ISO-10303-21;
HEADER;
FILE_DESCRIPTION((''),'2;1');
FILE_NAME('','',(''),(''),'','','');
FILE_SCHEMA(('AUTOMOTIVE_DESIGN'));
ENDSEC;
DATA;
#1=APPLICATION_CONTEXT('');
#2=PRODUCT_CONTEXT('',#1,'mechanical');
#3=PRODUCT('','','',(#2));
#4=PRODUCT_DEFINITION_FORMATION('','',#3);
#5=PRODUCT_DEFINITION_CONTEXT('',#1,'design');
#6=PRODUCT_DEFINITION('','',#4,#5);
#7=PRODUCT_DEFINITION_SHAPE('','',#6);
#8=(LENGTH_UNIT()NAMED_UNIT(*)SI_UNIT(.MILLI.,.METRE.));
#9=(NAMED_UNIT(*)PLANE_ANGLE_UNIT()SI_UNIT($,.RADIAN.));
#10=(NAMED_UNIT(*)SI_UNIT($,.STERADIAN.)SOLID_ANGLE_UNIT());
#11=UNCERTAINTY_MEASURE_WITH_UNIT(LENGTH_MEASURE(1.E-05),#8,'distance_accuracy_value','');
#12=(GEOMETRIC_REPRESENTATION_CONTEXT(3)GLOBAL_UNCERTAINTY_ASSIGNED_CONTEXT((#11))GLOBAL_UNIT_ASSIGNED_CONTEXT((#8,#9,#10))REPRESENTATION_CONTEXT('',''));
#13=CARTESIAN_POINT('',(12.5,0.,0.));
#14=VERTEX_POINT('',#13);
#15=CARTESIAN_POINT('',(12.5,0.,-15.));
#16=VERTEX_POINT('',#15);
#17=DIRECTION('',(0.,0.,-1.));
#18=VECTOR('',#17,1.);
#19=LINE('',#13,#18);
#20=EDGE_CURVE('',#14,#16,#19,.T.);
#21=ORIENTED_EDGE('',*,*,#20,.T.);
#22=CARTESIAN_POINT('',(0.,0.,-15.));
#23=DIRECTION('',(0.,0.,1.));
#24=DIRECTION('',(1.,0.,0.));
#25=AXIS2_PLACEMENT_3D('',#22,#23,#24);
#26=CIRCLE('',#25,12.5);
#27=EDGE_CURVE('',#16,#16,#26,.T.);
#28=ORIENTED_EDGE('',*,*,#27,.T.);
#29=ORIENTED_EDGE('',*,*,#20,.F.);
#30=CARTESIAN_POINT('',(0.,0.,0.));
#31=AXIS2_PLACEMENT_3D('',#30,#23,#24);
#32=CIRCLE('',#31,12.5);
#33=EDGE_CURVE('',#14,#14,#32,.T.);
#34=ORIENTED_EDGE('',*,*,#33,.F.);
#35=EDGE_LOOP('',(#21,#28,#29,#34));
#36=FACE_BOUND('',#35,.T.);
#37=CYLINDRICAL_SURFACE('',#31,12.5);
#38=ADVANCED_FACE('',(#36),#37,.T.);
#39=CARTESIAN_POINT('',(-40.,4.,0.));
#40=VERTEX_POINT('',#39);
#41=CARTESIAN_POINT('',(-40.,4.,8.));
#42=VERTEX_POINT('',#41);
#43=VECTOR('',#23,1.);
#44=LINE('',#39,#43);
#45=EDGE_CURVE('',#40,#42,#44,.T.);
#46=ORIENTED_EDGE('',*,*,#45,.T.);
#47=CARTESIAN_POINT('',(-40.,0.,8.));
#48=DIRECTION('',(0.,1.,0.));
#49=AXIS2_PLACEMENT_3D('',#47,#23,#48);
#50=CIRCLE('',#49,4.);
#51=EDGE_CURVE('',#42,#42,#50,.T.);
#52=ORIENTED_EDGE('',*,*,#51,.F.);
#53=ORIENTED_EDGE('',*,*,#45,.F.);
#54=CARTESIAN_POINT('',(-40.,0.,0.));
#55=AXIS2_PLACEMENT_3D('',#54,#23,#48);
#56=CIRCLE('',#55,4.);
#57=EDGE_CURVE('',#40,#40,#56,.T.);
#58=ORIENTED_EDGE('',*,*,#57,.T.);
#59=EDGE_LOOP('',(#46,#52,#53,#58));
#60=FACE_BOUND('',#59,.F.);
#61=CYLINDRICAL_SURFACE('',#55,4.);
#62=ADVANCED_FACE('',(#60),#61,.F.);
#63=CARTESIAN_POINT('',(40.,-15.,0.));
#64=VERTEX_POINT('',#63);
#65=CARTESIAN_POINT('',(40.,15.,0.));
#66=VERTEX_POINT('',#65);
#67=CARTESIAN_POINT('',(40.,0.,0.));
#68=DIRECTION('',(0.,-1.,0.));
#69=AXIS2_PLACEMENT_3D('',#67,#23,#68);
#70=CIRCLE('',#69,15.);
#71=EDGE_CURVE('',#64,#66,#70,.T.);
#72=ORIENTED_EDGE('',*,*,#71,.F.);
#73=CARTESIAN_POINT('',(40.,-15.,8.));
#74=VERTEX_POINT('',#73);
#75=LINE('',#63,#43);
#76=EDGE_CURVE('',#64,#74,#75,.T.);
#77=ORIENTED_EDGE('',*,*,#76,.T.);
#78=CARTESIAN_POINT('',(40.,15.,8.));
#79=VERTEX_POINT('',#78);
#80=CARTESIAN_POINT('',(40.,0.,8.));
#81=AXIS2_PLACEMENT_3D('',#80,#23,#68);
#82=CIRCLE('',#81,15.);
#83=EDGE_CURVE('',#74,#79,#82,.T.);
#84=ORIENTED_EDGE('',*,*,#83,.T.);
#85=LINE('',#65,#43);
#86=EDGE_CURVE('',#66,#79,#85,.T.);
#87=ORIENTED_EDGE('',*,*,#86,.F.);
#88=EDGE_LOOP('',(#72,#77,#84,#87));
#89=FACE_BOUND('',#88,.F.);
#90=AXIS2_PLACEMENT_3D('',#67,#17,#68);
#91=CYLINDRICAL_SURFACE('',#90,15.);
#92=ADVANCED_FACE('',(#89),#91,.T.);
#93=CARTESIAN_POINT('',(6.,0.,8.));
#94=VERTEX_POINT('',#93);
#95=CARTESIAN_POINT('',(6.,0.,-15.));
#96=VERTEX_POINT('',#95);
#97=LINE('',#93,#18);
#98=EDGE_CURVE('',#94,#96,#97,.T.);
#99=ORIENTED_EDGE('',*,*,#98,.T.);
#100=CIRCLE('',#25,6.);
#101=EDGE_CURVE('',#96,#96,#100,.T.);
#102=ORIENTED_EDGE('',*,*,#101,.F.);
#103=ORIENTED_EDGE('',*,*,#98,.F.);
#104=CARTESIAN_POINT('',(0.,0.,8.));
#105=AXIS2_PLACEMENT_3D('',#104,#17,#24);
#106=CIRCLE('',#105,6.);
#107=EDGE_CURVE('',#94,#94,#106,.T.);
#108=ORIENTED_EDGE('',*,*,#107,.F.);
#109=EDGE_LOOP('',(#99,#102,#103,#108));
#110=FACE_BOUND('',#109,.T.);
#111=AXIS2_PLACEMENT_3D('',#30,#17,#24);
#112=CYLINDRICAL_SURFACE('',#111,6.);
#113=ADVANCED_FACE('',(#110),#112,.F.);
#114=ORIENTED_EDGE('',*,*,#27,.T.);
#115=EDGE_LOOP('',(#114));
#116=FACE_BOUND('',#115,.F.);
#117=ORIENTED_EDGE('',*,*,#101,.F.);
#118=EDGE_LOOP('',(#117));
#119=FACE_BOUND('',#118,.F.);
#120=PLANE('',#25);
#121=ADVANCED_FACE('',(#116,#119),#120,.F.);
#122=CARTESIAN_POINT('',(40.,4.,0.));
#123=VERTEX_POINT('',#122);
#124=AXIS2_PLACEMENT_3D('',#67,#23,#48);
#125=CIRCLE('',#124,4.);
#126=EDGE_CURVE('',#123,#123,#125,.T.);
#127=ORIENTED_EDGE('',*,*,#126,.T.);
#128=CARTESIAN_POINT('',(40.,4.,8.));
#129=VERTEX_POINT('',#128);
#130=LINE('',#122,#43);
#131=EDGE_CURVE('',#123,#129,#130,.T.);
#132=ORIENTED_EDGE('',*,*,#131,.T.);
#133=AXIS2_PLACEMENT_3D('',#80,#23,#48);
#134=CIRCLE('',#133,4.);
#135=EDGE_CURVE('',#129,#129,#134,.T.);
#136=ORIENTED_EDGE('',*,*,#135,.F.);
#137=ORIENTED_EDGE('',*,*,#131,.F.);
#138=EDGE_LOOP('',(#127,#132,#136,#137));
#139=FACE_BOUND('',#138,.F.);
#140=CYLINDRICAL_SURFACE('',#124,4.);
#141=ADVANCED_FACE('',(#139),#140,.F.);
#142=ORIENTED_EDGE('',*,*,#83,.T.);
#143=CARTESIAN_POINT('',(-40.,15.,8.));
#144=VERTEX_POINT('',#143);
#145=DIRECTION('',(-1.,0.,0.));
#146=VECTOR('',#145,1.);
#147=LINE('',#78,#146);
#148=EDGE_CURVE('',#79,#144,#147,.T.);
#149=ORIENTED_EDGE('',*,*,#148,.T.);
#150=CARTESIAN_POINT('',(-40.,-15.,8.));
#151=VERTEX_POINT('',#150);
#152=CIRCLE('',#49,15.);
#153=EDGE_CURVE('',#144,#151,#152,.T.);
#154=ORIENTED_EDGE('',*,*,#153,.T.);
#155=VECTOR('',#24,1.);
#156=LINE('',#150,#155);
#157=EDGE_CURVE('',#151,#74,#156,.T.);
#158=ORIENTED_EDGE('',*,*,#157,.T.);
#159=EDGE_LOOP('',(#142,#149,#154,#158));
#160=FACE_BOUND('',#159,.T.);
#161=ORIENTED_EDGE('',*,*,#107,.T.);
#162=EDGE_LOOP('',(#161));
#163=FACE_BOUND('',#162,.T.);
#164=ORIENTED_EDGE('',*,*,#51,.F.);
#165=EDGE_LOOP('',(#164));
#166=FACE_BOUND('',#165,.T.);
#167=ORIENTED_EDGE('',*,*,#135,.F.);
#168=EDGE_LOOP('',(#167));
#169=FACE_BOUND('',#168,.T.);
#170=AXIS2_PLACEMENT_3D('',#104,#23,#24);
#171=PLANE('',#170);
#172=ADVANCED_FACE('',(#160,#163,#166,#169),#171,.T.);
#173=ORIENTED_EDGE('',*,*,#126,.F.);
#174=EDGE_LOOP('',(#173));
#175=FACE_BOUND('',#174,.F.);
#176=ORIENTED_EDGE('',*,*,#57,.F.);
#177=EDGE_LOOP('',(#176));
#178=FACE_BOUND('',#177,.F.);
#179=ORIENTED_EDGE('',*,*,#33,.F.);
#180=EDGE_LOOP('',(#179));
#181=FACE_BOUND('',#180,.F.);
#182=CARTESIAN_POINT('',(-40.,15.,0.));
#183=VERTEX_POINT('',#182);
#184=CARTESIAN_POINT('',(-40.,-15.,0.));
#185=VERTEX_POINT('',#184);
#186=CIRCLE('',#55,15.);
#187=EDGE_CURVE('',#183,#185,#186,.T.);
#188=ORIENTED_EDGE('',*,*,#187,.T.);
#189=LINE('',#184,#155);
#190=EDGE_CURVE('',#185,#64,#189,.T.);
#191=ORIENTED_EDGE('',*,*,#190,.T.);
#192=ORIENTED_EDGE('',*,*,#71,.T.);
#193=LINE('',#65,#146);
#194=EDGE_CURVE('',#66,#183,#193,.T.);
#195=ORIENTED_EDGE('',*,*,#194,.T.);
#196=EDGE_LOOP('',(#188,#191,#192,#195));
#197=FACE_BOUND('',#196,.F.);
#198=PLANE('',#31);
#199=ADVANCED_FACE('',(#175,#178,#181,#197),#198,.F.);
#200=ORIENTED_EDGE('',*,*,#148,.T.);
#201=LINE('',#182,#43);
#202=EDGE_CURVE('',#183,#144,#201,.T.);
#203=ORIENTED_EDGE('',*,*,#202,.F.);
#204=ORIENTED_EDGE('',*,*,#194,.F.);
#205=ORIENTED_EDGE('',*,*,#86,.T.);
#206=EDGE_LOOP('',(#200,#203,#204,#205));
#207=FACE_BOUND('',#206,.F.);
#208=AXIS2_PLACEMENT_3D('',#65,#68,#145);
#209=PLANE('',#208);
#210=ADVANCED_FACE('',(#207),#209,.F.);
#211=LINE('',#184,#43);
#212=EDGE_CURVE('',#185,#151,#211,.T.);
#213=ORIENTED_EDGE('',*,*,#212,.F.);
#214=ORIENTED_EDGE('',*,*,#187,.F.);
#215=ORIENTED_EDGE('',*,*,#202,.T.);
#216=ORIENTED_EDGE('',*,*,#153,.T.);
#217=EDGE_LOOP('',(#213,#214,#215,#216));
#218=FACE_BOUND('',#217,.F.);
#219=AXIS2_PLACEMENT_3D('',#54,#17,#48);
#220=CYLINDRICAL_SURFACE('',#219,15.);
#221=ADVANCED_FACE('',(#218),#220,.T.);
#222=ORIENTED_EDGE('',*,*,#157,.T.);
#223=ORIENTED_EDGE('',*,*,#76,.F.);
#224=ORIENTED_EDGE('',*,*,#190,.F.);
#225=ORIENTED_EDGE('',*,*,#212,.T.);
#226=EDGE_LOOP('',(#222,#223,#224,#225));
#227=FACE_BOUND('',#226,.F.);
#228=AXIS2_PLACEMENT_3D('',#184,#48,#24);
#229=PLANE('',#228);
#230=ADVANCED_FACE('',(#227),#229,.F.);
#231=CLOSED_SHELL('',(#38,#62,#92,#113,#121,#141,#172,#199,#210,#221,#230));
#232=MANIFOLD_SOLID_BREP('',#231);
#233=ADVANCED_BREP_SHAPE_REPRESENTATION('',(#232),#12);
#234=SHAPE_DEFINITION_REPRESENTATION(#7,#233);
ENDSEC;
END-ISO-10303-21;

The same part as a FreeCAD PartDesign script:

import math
import FreeCAD as App
import Part
import Sketcher
Q = App.Units.Quantity

doc = App.newDocument("Part")
body = doc.addObject("PartDesign::Body", "Body")

sketch1 = body.newObject("Sketcher::SketchObject", "Sketch")
sketch1.AttachmentSupport = (doc.getObject("XY_Plane"), [""])
sketch1.MapMode = "FlatFace"
sketch1.addGeometry([
    Part.ArcOfCircle(Part.Circle(App.Vector(-40, 0, 0), App.Vector(0, 0, 1), 15), math.radians(90), math.radians(270)),
    Part.LineSegment(App.Vector(-40, -15, 0), App.Vector(40, -15, 0)),
    Part.ArcOfCircle(Part.Circle(App.Vector(40, 0, 0), App.Vector(0, 0, 1), 15), math.radians(-90), math.radians(90)),
    Part.LineSegment(App.Vector(40, 15, 0), App.Vector(-40, 15, 0)),
], False)
sketch1.addConstraint([
    Sketcher.Constraint("Tangent", 0, 2, 1, 1),
    Sketcher.Constraint("Tangent", 1, 2, 2, 1),
    Sketcher.Constraint("Tangent", 2, 2, 3, 1),
    Sketcher.Constraint("Tangent", 3, 2, 0, 1),
    Sketcher.Constraint("Horizontal", 1),
    Sketcher.Constraint("Horizontal", 3),
    Sketcher.Constraint("Symmetric", 0, 3, 2, 3, -1, 1),
    Sketcher.Constraint("Radius", 0, Q("15 mm")),
    Sketcher.Constraint("DistanceX", 1, 1, 1, 2, Q("80 mm")),
])
pad1 = body.newObject("PartDesign::Pad", "Pad")
pad1.Profile = sketch1
pad1.Length = 8

sketch2 = body.newObject("Sketcher::SketchObject", "Sketch001")
sketch2.AttachmentSupport = (doc.getObject("XY_Plane"), [""])
sketch2.MapMode = "FlatFace"
sketch2.addGeometry(Part.Circle(App.Vector(40, 0, 0), App.Vector(0, 0, 1), 4), False)
sketch2.addConstraint([
    Sketcher.Constraint("PointOnObject", 0, 3, -1),
    Sketcher.Constraint("Diameter", 0, Q("8 mm")),
    Sketcher.Constraint("DistanceX", -1, 1, 0, 3, Q("40 mm")),
])
doc.recompute()
hole = body.newObject("PartDesign::Hole", "Hole")
hole.Profile = sketch2
hole.ThreadType = "None"
hole.Diameter = 8
hole.DepthType = "ThroughAll"
hole.Reversed = True

sketch3 = body.newObject("Sketcher::SketchObject", "Sketch002")
sketch3.AttachmentSupport = (doc.getObject("XY_Plane"), [""])
sketch3.MapMode = "FlatFace"
sketch3.addGeometry(Part.Circle(App.Vector(-40, 0, 0), App.Vector(0, 0, 1), 4), False)
sketch3.addConstraint([
    Sketcher.Constraint("PointOnObject", 0, 3, -1),
    Sketcher.Constraint("Diameter", 0, Q("8 mm")),
    Sketcher.Constraint("DistanceX", 0, 3, -1, 1, Q("40 mm")),
])
doc.recompute()
hole2 = body.newObject("PartDesign::Hole", "Hole001")
hole2.Profile = sketch3
hole2.ThreadType = "None"
hole2.Diameter = 8
hole2.DepthType = "ThroughAll"
hole2.Reversed = True

sketch4 = body.newObject("Sketcher::SketchObject", "Sketch003")
sketch4.AttachmentSupport = (doc.getObject("XY_Plane"), [""])
sketch4.MapMode = "FlatFace"
sketch4.addGeometry([
    Part.Circle(App.Vector(0, 0, 0), App.Vector(0, 0, 1), 12),
    Part.Circle(App.Vector(0, 0, 0), App.Vector(0, 0, 1), 6),
], False)
sketch4.addConstraint([
    Sketcher.Constraint("Coincident", 0, 3, -1, 1),
    Sketcher.Constraint("Coincident", 1, 3, -1, 1),
    Sketcher.Constraint("Diameter", 0, Q("25 mm")),
    Sketcher.Constraint("Diameter", 1, Q("12 mm")),
])
pad2 = body.newObject("PartDesign::Pad", "Pad001")
pad2.Profile = sketch4
pad2.Length = 15
pad2.Reversed = True

sketch5 = body.newObject("Sketcher::SketchObject", "Sketch004")
sketch5.AttachmentSupport = (doc.getObject("XY_Plane"), [""])
sketch5.MapMode = "FlatFace"
sketch5.addGeometry(Part.Circle(App.Vector(0, 0, 0), App.Vector(0, 0, 1), 6), False)
sketch5.addConstraint([
    Sketcher.Constraint("Coincident", 0, 3, -1, 1),
    Sketcher.Constraint("Diameter", 0, Q("12 mm")),
])
pocket1 = body.newObject("PartDesign::Pocket", "Pocket")
pocket1.Profile = sketch5
pocket1.Length = 15
pocket1.Reversed = True

doc.recompute()
